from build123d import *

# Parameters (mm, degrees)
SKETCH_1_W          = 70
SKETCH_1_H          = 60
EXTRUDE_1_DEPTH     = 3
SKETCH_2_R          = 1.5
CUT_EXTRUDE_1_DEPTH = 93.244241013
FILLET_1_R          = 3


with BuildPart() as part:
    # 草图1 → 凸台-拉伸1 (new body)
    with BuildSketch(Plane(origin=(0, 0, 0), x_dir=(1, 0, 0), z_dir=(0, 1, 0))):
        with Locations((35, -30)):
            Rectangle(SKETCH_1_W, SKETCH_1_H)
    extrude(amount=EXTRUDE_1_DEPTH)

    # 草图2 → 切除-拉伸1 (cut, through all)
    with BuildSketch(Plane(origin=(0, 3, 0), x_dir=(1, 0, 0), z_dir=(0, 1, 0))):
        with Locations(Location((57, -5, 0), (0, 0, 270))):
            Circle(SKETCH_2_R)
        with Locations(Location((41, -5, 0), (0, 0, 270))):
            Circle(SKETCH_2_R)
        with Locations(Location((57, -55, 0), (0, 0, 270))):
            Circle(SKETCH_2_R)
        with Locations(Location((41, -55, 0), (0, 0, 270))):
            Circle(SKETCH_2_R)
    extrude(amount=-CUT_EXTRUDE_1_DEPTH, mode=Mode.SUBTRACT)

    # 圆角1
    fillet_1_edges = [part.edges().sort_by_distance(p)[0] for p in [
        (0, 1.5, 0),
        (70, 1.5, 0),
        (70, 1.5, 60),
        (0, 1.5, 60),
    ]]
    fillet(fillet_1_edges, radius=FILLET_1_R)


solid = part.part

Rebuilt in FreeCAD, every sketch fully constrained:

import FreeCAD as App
import Part
import Sketcher


def edges_at(feature, points):
    """Names of the edges that pass closest to the given points."""
    edges = feature.Shape.Edges
    near = lambda p: min(range(len(edges)), key=lambda i: edges[i].distToShape(Part.Vertex(*p))[0])
    return sorted({f"Edge{near(p) + 1}" for p in points})


def add_polygon(sketch, points):
    """Adds a closed chain of lines whose ends are joined by coincident constraints."""
    first, n = sketch.GeometryCount, len(points)
    for a, b in zip(points, points[1:] + points[:1]):
        sketch.addGeometry(Part.LineSegment(App.Vector(*a, 0), App.Vector(*b, 0)), False)
    for i in range(n):
        sketch.addConstraint(Sketcher.Constraint("Coincident", first + i, 2, first + (i + 1) % n, 1))

doc = App.newDocument("Part")
body = doc.addObject("PartDesign::Body", "Body")

# Sketch on XZ plane
sketch1 = body.newObject("Sketcher::SketchObject", "Sketch")
sketch1.AttachmentSupport = (doc.getObject("XZ_Plane"), [""])
sketch1.MapMode = "FlatFace"
add_polygon(sketch1, [(0, 0), (0, 60), (70, 60), (70, 0)])  # lines 0-3
sketch1.addConstraint([
    Sketcher.Constraint("Vertical", 0),
    Sketcher.Constraint("Horizontal", 1),
    Sketcher.Constraint("Vertical", 2),
    Sketcher.Constraint("Horizontal", 3),
    Sketcher.Constraint("Coincident", 3, 2, -1, 1),
    Sketcher.Constraint("DistanceX", 1, 1, 1, 2, 70.0),
    Sketcher.Constraint("DistanceY", 0, 1, 0, 2, 60.0),
])
pad1 = body.newObject("PartDesign::Pad", "Pad")
pad1.Profile = sketch1
pad1.Length = 3
pad1.Reversed = True

# Sketch on XZ plane
sketch2 = body.newObject("Sketcher::SketchObject", "Sketch001")
sketch2.AttachmentSupport = (doc.getObject("XZ_Plane"), [""])
sketch2.MapMode = "FlatFace"
sketch2.AttachmentOffset = App.Placement(App.Vector(0, 0, -3), App.Rotation())
sketch2.addGeometry([
    Part.Circle(App.Vector(57, 5, 0), App.Vector(0, 0, 1), 1.5),
    Part.Circle(App.Vector(41, 5, 0), App.Vector(0, 0, 1), 1.5),
    Part.Circle(App.Vector(57, 55, 0), App.Vector(0, 0, 1), 1.5),
    Part.Circle(App.Vector(41, 55, 0), App.Vector(0, 0, 1), 1.5),
], False)
sketch2.addConstraint([
    Sketcher.Constraint("Equal", 0, 1),
    Sketcher.Constraint("Equal", 1, 2),
    Sketcher.Constraint("Equal", 2, 3),
    Sketcher.Constraint("Horizontal", 0, 3, 1, 3),
    Sketcher.Constraint("Horizontal", 2, 3, 3, 3),
    Sketcher.Constraint("Vertical", 0, 3, 2, 3),
    Sketcher.Constraint("Vertical", 1, 3, 3, 3),
    Sketcher.Constraint("Diameter", 0, 3.0),
    Sketcher.Constraint("DistanceX", -1, 1, 0, 3, 57.0),
    Sketcher.Constraint("DistanceY", -1, 1, 0, 3, 5.0),
    Sketcher.Constraint("DistanceX", -1, 1, 1, 3, 41.0),
    Sketcher.Constraint("DistanceY", -1, 1, 2, 3, 55.0),
])
pocket1 = body.newObject("PartDesign::Pocket", "Pocket")
pocket1.Profile = sketch2
pocket1.Type = "ThroughAll"
pocket1.Reversed = True
doc.recompute()

fillet = body.newObject("PartDesign::Fillet", "Fillet")
fillet.Base = (pocket1, edges_at(pocket1, [
    (0, 1.5, 0),
    (70, 1.5, 0),
    (70, 1.5, 60),
    (0, 1.5, 60),
]))
fillet.Radius = 3

doc.recompute()
